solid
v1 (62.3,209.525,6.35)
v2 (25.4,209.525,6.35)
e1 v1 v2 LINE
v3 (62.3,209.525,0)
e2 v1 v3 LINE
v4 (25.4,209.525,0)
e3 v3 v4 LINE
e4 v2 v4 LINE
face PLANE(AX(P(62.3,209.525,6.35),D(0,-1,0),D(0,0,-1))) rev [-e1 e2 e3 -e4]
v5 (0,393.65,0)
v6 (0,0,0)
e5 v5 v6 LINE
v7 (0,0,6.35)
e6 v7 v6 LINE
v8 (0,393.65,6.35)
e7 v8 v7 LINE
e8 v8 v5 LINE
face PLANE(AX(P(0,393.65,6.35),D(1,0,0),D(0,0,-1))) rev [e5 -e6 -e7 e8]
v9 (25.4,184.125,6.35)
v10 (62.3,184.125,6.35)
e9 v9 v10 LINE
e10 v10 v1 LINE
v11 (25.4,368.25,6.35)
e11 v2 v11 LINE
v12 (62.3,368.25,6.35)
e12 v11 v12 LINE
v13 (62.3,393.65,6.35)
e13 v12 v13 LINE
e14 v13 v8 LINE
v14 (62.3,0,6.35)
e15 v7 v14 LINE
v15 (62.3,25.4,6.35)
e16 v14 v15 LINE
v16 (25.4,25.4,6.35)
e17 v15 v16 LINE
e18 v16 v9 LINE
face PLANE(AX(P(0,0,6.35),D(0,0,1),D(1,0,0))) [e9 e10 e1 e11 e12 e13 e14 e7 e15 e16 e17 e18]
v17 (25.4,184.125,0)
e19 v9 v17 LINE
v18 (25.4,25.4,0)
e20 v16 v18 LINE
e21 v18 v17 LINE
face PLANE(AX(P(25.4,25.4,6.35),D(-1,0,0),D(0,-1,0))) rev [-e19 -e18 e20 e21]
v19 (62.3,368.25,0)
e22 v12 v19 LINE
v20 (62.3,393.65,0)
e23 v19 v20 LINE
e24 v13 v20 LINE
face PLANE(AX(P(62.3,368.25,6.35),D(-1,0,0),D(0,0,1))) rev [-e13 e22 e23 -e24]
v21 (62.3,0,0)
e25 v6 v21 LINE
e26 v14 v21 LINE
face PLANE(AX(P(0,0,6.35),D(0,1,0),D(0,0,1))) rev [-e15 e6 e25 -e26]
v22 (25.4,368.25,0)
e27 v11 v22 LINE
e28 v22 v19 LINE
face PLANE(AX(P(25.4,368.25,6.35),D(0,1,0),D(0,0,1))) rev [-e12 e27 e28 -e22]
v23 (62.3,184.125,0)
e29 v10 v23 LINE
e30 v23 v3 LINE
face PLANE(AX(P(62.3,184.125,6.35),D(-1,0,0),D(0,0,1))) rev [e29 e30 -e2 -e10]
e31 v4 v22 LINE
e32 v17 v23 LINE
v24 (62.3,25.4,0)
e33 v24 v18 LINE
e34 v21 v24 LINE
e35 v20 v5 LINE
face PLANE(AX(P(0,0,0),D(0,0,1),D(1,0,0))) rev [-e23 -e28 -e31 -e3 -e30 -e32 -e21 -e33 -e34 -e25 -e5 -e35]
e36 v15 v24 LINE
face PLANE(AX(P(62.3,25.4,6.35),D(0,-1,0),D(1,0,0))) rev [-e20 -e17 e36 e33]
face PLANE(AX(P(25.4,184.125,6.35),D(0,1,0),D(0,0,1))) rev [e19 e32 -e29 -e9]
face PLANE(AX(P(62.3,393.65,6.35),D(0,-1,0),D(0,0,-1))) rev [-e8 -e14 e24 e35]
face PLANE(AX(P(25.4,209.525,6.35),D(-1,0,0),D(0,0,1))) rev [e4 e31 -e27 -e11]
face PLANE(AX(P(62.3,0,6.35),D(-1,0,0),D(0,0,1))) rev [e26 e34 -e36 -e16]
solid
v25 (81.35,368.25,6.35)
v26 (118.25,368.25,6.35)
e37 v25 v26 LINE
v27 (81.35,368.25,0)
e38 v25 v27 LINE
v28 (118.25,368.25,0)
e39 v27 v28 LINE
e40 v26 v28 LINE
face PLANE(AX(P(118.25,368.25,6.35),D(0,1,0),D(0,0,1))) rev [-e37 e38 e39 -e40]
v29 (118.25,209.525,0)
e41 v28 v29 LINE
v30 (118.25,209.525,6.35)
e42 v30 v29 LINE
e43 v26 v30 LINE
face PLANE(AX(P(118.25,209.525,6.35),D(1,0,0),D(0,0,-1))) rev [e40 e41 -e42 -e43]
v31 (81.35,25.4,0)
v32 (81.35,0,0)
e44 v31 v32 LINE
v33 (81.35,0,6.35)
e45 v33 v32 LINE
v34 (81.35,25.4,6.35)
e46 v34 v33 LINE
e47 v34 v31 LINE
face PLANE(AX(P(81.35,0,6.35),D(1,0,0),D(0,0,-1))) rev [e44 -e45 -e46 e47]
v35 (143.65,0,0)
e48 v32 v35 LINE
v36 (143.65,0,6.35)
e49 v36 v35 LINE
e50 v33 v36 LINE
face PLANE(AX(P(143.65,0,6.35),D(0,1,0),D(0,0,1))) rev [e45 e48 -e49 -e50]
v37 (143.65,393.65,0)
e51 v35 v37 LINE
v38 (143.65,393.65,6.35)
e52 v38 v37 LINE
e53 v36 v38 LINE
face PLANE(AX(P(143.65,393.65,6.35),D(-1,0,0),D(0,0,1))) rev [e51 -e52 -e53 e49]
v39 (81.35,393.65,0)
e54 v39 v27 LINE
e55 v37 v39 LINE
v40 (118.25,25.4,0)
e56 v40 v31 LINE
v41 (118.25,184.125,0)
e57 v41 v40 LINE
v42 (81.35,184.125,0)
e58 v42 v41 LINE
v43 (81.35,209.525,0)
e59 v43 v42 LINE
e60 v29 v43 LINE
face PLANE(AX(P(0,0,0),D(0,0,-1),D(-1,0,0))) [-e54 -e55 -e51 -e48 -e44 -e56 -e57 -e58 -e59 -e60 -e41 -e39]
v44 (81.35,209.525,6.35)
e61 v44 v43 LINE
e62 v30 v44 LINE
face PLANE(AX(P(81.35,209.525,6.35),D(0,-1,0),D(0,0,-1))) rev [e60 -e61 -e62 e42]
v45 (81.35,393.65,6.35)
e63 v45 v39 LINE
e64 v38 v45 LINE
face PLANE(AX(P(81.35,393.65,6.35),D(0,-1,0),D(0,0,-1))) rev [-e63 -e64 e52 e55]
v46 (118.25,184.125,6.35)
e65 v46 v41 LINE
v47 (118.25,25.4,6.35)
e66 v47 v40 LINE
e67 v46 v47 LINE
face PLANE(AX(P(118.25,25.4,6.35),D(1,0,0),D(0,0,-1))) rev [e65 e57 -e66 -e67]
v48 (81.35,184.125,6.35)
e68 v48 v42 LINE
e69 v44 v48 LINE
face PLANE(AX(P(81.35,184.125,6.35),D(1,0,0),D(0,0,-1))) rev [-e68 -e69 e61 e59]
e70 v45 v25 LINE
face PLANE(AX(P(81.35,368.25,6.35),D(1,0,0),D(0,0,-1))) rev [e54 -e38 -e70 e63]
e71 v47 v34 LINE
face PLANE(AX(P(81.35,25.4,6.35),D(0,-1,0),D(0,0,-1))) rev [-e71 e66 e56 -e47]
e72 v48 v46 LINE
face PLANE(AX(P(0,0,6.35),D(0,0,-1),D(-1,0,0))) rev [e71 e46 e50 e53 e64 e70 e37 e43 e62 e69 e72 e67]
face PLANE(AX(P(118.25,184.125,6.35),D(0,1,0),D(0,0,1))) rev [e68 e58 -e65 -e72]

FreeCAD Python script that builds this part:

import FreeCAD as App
import Part
import Sketcher
Q = App.Units.Quantity

doc = App.newDocument("Part")
body = doc.addObject("PartDesign::Body", "Body")

sketch1 = body.newObject("Sketcher::SketchObject", "Sketch")
sketch1.AttachmentSupport = (doc.getObject("XY_Plane"), [""])
sketch1.MapMode = "FlatFace"
sketch1.addGeometry(Part.LineSegment(App.Vector(0, 0, 0), App.Vector(62.3, 0, 0)), False)
sketch1.addGeometry(Part.LineSegment(App.Vector(62.3, 0, 0), App.Vector(62.3, 25.4, 0)), False)
sketch1.addGeometry(Part.LineSegment(App.Vector(62.3, 25.4, 0), App.Vector(25.4, 25.4, 0)), False)
sketch1.addGeometry(Part.LineSegment(App.Vector(25.4, 25.4, 0), App.Vector(25.4, 184.125, 0)), False)
sketch1.addGeometry(Part.LineSegment(App.Vector(25.4, 184.125, 0), App.Vector(62.3, 184.125, 0)), False)
sketch1.addGeometry(Part.LineSegment(App.Vector(62.3, 184.125, 0), App.Vector(62.3, 209.525, 0)), False)
sketch1.addGeometry(Part.LineSegment(App.Vector(62.3, 209.525, 0), App.Vector(25.4, 209.525, 0)), False)
sketch1.addGeometry(Part.LineSegment(App.Vector(25.4, 209.525, 0), App.Vector(25.4, 368.25, 0)), False)
sketch1.addGeometry(Part.LineSegment(App.Vector(25.4, 368.25, 0), App.Vector(62.3, 368.25, 0)), False)
sketch1.addGeometry(Part.LineSegment(App.Vector(62.3, 368.25, 0), App.Vector(62.3, 393.65, 0)), False)
sketch1.addGeometry(Part.LineSegment(App.Vector(62.3, 393.65, 0), App.Vector(0, 393.65, 0)), False)
sketch1.addGeometry(Part.LineSegment(App.Vector(0, 393.65, 0), App.Vector(0, 0, 0)), False)
sketch1.addConstraint(Sketcher.Constraint("Coincident", 0, 2, 1, 1))
sketch1.addConstraint(Sketcher.Constraint("Coincident", 1, 2, 2, 1))
sketch1.addConstraint(Sketcher.Constraint("Coincident", 2, 2, 3, 1))
sketch1.addConstraint(Sketcher.Constraint("Coincident", 3, 2, 4, 1))
sketch1.addConstraint(Sketcher.Constraint("Coincident", 4, 2, 5, 1))
sketch1.addConstraint(Sketcher.Constraint("Coincident", 5, 2, 6, 1))
sketch1.addConstraint(Sketcher.Constraint("Coincident", 6, 2, 7, 1))
sketch1.addConstraint(Sketcher.Constraint("Coincident", 7, 2, 8, 1))
sketch1.addConstraint(Sketcher.Constraint("Coincident", 8, 2, 9, 1))
sketch1.addConstraint(Sketcher.Constraint("Coincident", 9, 2, 10, 1))
sketch1.addConstraint(Sketcher.Constraint("Coincident", 10, 2, 11, 1))
sketch1.addConstraint(Sketcher.Constraint("Coincident", 11, 2, 0, 1))
sketch1.addConstraint(Sketcher.Constraint("Horizontal", 0))
sketch1.addConstraint(Sketcher.Constraint("Vertical", 1))
sketch1.addConstraint(Sketcher.Constraint("Horizontal", 2))
sketch1.addConstraint(Sketcher.Constraint("Vertical", 3))
sketch1.addConstraint(Sketcher.Constraint("Horizontal", 4))
sketch1.addConstraint(Sketcher.Constraint("Vertical", 5))
sketch1.addConstraint(Sketcher.Constraint("Horizontal", 6))
sketch1.addConstraint(Sketcher.Constraint("Vertical", 7))
sketch1.addConstraint(Sketcher.Constraint("Horizontal", 8))
sketch1.addConstraint(Sketcher.Constraint("Vertical", 9))
sketch1.addConstraint(Sketcher.Constraint("Horizontal", 10))
sketch1.addConstraint(Sketcher.Constraint("Vertical", 11))
sketch1.addConstraint(Sketcher.Constraint("Coincident", 11, 2, -1, 1))
sketch1.addConstraint(Sketcher.Constraint("Vertical", 1, 2, 4, 2))
sketch1.addConstraint(Sketcher.Constraint("Vertical", 3, 2, 6, 2))
sketch1.addConstraint(Sketcher.Constraint("Vertical", 5, 2, 8, 2))
sketch1.addConstraint(Sketcher.Constraint("Equal", 1, 5))
sketch1.addConstraint(Sketcher.Constraint("Equal", 3, 7))
sketch1.addConstraint(Sketcher.Constraint("Equal", 5, 9))
sketch1.addConstraint(Sketcher.Constraint("DistanceX", 0, 1, 0, 2, Q("62.3 mm")))
sketch1.addConstraint(Sketcher.Constraint("DistanceX", 2, 2, 2, 1, Q("36.9 mm")))
sketch1.addConstraint(Sketcher.Constraint("DistanceY", 1, 1, 1, 2, Q("25.4 mm")))
sketch1.addConstraint(Sketcher.Constraint("DistanceY", 11, 2, 11, 1, Q("393.65 mm")))
pad1 = body.newObject("PartDesign::Pad", "Pad")
pad1.Profile = sketch1
pad1.Length = 6.35
body2 = doc.addObject("PartDesign::Body", "Body001")

sketch2 = body2.newObject("Sketcher::SketchObject", "Sketch001")
sketch2.AttachmentSupport = (doc.getObject("XY_Plane001"), [""])
sketch2.MapMode = "FlatFace"
sketch2.addGeometry(Part.LineSegment(App.Vector(81.35, 209.525, 0), App.Vector(81.35, 184.125, 0)), False)
sketch2.addGeometry(Part.LineSegment(App.Vector(81.35, 184.125, 0), App.Vector(118.25, 184.125, 0)), False)
sketch2.addGeometry(Part.LineSegment(App.Vector(118.25, 184.125, 0), App.Vector(118.25, 25.4, 0)), False)
sketch2.addGeometry(Part.LineSegment(App.Vector(118.25, 25.4, 0), App.Vector(81.35, 25.4, 0)), False)
sketch2.addGeometry(Part.LineSegment(App.Vector(81.35, 25.4, 0), App.Vector(81.35, 0, 0)), False)
sketch2.addGeometry(Part.LineSegment(App.Vector(81.35, 0, 0), App.Vector(143.65, 0, 0)), False)
sketch2.addGeometry(Part.LineSegment(App.Vector(143.65, 0, 0), App.Vector(143.65, 393.65, 0)), False)
sketch2.addGeometry(Part.LineSegment(App.Vector(143.65, 393.65, 0), App.Vector(81.35, 393.65, 0)), False)
sketch2.addGeometry(Part.LineSegment(App.Vector(81.35, 393.65, 0), App.Vector(81.35, 368.25, 0)), False)
sketch2.addGeometry(Part.LineSegment(App.Vector(81.35, 368.25, 0), App.Vector(118.25, 368.25, 0)), False)
sketch2.addGeometry(Part.LineSegment(App.Vector(118.25, 368.25, 0), App.Vector(118.25, 209.525, 0)), False)
sketch2.addGeometry(Part.LineSegment(App.Vector(118.25, 209.525, 0), App.Vector(81.35, 209.525, 0)), False)
sketch2.addConstraint(Sketcher.Constraint("Coincident", 0, 2, 1, 1))
sketch2.addConstraint(Sketcher.Constraint("Coincident", 1, 2, 2, 1))
sketch2.addConstraint(Sketcher.Constraint("Coincident", 2, 2, 3, 1))
sketch2.addConstraint(Sketcher.Constraint("Coincident", 3, 2, 4, 1))
sketch2.addConstraint(Sketcher.Constraint("Coincident", 4, 2, 5, 1))
sketch2.addConstraint(Sketcher.Constraint("Coincident", 5, 2, 6, 1))
sketch2.addConstraint(Sketcher.Constraint("Coincident", 6, 2, 7, 1))
sketch2.addConstraint(Sketcher.Constraint("Coincident", 7, 2, 8, 1))
sketch2.addConstraint(Sketcher.Constraint("Coincident", 8, 2, 9, 1))
sketch2.addConstraint(Sketcher.Constraint("Coincident", 9, 2, 10, 1))
sketch2.addConstraint(Sketcher.Constraint("Coincident", 10, 2, 11, 1))
sketch2.addConstraint(Sketcher.Constraint("Coincident", 11, 2, 0, 1))
sketch2.addConstraint(Sketcher.Constraint("Vertical", 0))
sketch2.addConstraint(Sketcher.Constraint("Horizontal", 1))
sketch2.addConstraint(Sketcher.Constraint("Vertical", 2))
sketch2.addConstraint(Sketcher.Constraint("Horizontal", 3))
sketch2.addConstraint(Sketcher.Constraint("Vertical", 4))
sketch2.addConstraint(Sketcher.Constraint("Horizontal", 5))
sketch2.addConstraint(Sketcher.Constraint("Vertical", 6))
sketch2.addConstraint(Sketcher.Constraint("Horizontal", 7))
sketch2.addConstraint(Sketcher.Constraint("Vertical", 8))
sketch2.addConstraint(Sketcher.Constraint("Horizontal", 9))
sketch2.addConstraint(Sketcher.Constraint("Vertical", 10))
sketch2.addConstraint(Sketcher.Constraint("Horizontal", 11))
sketch2.addConstraint(Sketcher.Constraint("PointOnObject", 4, 2, -1))
sketch2.addConstraint(Sketcher.Constraint("Vertical", 0, 2, 3, 2))
sketch2.addConstraint(Sketcher.Constraint("Vertical", 4, 2, 7, 2))
sketch2.addConstraint(Sketcher.Constraint("Vertical", 2, 2, 9, 2))
sketch2.addConstraint(Sketcher.Constraint("Equal", 0, 4))
sketch2.addConstraint(Sketcher.Constraint("Equal", 4, 8))
sketch2.addConstraint(Sketcher.Constraint("Equal", 2, 10))
sketch2.addConstraint(Sketcher.Constraint("DistanceX", 1, 1, 1, 2, Q("36.9 mm")))
sketch2.addConstraint(Sketcher.Constraint("DistanceX", 5, 1, 5, 2, Q("62.3 mm")))
sketch2.addConstraint(Sketcher.Constraint("DistanceY", 0, 2, 0, 1, Q("25.4 mm")))
sketch2.addConstraint(Sketcher.Constraint("DistanceY", 6, 1, 6, 2, Q("393.65 mm")))
sketch2.addConstraint(Sketcher.Constraint("DistanceX", -1, 1, 0, 2, Q("81.35 mm")))
pad2 = body2.newObject("PartDesign::Pad", "Pad001")
pad2.Profile = sketch2
pad2.Length = 6.35

doc.recompute()
